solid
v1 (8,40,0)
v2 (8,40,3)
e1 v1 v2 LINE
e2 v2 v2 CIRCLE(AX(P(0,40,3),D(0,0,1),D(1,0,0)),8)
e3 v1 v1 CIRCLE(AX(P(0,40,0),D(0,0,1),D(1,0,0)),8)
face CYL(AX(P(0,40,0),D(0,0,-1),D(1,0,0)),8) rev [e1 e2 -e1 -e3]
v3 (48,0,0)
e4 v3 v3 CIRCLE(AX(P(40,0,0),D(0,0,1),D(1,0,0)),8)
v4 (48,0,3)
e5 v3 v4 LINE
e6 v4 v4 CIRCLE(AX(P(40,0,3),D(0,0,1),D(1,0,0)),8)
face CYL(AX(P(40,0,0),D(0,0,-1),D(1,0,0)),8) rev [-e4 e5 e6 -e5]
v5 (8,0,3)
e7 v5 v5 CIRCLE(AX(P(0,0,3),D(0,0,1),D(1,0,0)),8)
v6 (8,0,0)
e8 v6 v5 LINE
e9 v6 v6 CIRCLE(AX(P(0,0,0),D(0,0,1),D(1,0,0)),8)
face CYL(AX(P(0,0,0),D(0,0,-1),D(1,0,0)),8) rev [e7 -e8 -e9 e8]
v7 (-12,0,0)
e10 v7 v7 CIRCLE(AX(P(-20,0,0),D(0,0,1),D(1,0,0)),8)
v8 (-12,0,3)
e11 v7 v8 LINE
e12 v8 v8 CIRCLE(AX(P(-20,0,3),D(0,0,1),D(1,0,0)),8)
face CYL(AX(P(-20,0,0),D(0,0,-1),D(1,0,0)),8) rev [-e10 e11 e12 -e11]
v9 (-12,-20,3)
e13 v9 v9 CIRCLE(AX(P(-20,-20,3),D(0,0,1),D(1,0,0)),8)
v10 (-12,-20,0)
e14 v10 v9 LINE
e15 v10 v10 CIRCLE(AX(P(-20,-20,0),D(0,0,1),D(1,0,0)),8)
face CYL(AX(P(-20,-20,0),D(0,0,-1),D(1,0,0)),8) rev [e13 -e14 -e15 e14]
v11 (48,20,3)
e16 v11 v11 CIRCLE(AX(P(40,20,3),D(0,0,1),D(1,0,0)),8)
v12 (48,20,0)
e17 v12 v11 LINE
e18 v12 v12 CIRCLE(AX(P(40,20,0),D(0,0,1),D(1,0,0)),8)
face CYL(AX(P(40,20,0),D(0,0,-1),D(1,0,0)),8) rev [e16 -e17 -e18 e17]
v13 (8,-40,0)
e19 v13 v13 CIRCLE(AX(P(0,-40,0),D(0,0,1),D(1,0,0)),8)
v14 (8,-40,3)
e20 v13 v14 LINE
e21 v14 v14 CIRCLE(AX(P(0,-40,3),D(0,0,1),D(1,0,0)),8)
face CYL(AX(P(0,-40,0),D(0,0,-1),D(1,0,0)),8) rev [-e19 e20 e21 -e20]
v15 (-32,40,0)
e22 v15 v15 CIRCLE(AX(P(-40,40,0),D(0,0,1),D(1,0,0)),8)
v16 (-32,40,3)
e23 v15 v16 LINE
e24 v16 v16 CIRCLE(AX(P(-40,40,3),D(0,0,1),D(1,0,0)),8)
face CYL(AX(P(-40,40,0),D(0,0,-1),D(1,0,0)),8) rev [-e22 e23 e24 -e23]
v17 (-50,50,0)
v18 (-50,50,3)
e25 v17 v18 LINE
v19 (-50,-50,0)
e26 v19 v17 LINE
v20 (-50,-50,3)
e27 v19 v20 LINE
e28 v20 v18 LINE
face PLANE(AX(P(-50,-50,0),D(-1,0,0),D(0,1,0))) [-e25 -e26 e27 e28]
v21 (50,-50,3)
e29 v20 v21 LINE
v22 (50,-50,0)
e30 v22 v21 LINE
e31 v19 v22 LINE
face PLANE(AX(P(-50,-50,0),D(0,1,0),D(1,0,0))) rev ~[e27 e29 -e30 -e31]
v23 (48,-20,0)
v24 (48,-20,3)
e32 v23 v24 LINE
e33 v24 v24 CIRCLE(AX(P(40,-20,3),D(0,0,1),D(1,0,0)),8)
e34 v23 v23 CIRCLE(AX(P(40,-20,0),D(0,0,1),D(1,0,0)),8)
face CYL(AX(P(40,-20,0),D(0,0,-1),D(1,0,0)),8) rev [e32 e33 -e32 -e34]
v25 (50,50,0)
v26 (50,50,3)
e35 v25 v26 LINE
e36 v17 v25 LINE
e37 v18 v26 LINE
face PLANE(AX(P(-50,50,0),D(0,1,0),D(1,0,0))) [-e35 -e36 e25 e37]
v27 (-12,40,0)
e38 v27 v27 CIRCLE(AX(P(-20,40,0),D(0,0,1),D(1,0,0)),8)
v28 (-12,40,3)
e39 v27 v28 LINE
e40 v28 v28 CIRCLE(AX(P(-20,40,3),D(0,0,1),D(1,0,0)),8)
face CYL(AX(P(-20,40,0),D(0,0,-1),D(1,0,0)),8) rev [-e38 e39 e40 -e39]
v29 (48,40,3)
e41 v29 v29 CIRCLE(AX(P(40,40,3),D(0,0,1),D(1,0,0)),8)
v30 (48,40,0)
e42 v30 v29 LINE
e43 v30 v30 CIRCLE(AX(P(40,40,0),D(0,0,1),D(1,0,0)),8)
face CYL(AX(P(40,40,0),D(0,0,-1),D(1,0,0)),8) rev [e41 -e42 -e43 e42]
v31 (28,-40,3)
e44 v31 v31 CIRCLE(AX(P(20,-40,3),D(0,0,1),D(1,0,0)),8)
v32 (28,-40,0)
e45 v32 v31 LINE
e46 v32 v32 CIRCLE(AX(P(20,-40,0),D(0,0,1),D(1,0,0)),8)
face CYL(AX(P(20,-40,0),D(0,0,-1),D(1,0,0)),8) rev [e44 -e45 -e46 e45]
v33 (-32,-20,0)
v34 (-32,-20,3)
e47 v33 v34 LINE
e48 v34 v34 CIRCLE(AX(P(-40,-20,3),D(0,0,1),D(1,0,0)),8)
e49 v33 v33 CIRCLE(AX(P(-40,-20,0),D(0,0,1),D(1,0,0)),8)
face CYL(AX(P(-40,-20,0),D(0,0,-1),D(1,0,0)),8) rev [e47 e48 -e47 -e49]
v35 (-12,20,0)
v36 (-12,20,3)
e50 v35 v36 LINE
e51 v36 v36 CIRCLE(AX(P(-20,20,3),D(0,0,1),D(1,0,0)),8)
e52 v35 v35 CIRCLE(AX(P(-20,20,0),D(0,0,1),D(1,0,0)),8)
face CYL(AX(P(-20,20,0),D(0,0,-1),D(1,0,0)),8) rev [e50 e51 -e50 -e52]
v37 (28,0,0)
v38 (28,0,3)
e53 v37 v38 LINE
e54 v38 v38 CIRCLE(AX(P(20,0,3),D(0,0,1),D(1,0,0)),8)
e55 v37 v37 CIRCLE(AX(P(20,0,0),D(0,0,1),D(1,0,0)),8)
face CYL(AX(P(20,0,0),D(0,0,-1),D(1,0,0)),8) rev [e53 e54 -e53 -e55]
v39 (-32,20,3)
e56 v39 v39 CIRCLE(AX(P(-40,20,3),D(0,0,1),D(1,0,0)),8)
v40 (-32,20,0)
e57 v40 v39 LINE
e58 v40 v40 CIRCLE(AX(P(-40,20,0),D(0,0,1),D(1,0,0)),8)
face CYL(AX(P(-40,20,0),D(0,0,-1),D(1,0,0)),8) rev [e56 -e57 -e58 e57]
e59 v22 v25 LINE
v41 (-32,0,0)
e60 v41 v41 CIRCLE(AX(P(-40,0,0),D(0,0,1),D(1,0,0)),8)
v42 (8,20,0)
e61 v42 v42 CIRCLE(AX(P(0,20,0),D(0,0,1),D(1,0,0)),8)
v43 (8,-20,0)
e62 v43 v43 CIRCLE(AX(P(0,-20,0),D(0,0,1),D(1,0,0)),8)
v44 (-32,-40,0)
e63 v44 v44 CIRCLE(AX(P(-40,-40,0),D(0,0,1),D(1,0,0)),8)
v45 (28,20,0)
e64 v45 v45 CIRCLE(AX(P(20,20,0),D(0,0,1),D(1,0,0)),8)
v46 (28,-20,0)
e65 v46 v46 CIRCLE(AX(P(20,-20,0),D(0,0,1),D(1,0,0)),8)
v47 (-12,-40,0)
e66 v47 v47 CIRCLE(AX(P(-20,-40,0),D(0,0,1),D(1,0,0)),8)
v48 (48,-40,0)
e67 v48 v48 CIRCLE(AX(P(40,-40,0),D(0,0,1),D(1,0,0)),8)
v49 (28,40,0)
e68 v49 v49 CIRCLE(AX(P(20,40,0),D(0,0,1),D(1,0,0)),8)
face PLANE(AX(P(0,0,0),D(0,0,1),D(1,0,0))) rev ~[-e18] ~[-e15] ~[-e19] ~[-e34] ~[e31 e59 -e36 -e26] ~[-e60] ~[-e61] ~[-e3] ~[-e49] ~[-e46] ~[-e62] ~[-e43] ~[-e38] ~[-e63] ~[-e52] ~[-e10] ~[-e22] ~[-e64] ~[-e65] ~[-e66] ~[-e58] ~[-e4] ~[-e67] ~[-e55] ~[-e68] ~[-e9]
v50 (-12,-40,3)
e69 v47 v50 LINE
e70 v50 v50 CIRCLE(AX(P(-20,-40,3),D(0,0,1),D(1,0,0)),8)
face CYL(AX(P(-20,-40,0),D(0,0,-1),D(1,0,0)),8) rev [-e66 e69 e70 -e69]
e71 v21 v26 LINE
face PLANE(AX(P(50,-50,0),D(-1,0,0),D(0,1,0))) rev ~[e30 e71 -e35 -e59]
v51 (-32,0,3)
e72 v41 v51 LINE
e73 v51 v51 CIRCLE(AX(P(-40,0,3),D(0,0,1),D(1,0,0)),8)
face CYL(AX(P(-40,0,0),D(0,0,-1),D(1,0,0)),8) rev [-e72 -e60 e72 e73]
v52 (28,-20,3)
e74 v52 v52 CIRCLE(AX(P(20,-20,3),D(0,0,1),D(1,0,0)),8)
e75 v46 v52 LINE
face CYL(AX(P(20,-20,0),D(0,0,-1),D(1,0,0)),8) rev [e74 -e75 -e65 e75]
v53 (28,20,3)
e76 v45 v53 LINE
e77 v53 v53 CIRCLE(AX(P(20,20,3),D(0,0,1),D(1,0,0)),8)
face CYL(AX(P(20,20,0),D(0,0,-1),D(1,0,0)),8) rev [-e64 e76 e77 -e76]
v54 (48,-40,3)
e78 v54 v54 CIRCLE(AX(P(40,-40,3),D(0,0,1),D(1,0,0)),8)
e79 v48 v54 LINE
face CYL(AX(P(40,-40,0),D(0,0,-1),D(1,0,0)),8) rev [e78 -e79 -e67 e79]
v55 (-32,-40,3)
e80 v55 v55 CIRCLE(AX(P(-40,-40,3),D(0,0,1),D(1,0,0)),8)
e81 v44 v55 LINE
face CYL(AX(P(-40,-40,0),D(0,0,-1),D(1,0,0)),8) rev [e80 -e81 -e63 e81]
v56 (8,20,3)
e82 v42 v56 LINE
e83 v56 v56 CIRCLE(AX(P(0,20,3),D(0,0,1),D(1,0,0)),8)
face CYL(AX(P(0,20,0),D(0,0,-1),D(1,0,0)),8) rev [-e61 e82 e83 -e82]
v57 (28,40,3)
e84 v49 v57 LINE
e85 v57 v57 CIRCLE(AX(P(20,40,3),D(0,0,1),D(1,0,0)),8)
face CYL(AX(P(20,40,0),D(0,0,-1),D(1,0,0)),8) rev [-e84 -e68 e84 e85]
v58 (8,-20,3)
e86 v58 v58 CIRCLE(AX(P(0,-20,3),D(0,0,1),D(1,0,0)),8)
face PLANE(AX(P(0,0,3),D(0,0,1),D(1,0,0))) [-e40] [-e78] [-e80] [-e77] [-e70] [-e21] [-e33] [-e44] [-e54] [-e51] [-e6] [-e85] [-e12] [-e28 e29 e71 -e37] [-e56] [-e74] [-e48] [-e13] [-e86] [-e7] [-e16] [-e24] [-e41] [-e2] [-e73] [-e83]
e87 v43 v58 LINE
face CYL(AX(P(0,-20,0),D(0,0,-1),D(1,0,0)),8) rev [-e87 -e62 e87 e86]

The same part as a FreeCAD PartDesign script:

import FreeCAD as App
import Part
import Sketcher
from FreeCAD import Vector


def add_polygon(sketch, points):
    """Adds a closed chain of lines whose ends are joined by coincident constraints."""
    first, n = sketch.GeometryCount, len(points)
    for a, b in zip(points, points[1:] + points[:1]):
        sketch.addGeometry(Part.LineSegment(App.Vector(*a, 0), App.Vector(*b, 0)), False)
    for i in range(n):
        sketch.addConstraint(Sketcher.Constraint("Coincident", first + i, 2, first + (i + 1) % n, 1))

doc = App.newDocument("Part")
body = doc.addObject("PartDesign::Body", "Body")

# Sketch on XY plane
sketch1 = body.newObject("Sketcher::SketchObject", "Sketch")
sketch1.AttachmentSupport = (doc.getObject("XY_Plane"), [""])
sketch1.MapMode = "FlatFace"
add_polygon(sketch1, [(-50, 50), (-50, -50), (50, -50), (50, 50)])  # lines 0-3
sketch1.addGeometry(Part.Circle(Vector(-40, -40, 0), Vector(0, 0, 1), 8), False)  # 4
sketch1.addGeometry(Part.Circle(Vector(-20, -40, 0), Vector(0, 0, 1), 8), False)  # 5
sketch1.addGeometry(Part.Circle(Vector(-40, -20, 0), Vector(0, 0, 1), 8), False)  # 6
sketch1.addGeometry(Part.Circle(Vector(-20, -20, 0), Vector(0, 0, 1), 8), False)  # 7
sketch1.addGeometry(Part.Circle(Vector(0, -40, 0), Vector(0, 0, 1), 8), False)  # 8
sketch1.addGeometry(Part.Circle(Vector(20, -40, 0), Vector(0, 0, 1), 8), False)  # 9
sketch1.addGeometry(Part.Circle(Vector(40, -40, 0), Vector(0, 0, 1), 8), False)  # 10
sketch1.addGeometry(Part.Circle(Vector(0, -20, 0), Vector(0, 0, 1), 8), False)  # 11
sketch1.addGeometry(Part.Circle(Vector(20, -20, 0), Vector(0, 0, 1), 8), False)  # 12
sketch1.addGeometry(Part.Circle(Vector(40, -20, 0), Vector(0, 0, 1), 8), False)  # 13
sketch1.addGeometry(Part.Circle(Vector(-40, 0, 0), Vector(0, 0, 1), 8), False)  # 14
sketch1.addGeometry(Part.Circle(Vector(-40, 20, 0), Vector(0, 0, 1), 8), False)  # 15
sketch1.addGeometry(Part.Circle(Vector(-20, 0, 0), Vector(0, 0, 1), 8), False)  # 16
sketch1.addGeometry(Part.Circle(Vector(-20, 20, 0), Vector(0, 0, 1), 8), False)  # 17
sketch1.addGeometry(Part.Circle(Vector(-40, 40, 0), Vector(0, 0, 1), 8), False)  # 18
sketch1.addGeometry(Part.Circle(Vector(-20, 40, 0), Vector(0, 0, 1), 8), False)  # 19
sketch1.addGeometry(Part.Circle(Vector(0, 0, 0), Vector(0, 0, 1), 8), False)  # 20
sketch1.addGeometry(Part.Circle(Vector(20, 0, 0), Vector(0, 0, 1), 8), False)  # 21
sketch1.addGeometry(Part.Circle(Vector(0, 20, 0), Vector(0, 0, 1), 8), False)  # 22
sketch1.addGeometry(Part.Circle(Vector(20, 20, 0), Vector(0, 0, 1), 8), False)  # 23
sketch1.addGeometry(Part.Circle(Vector(40, 0, 0), Vector(0, 0, 1), 8), False)  # 24
sketch1.addGeometry(Part.Circle(Vector(40, 20, 0), Vector(0, 0, 1), 8), False)  # 25
sketch1.addGeometry(Part.Circle(Vector(0, 40, 0), Vector(0, 0, 1), 8), False)  # 26
sketch1.addGeometry(Part.Circle(Vector(20, 40, 0), Vector(0, 0, 1), 8), False)  # 27
sketch1.addGeometry(Part.Circle(Vector(40, 40, 0), Vector(0, 0, 1), 8), False)  # 28
sketch1.addConstraint(Sketcher.Constraint("Vertical", 0))
sketch1.addConstraint(Sketcher.Constraint("Horizontal", 1))
sketch1.addConstraint(Sketcher.Constraint("Vertical", 2))
sketch1.addConstraint(Sketcher.Constraint("Horizontal", 3))
sketch1.addConstraint(Sketcher.Constraint("Coincident", 20, 3, -1, 1))
sketch1.addConstraint(Sketcher.Constraint("Equal", 4, 5))
sketch1.addConstraint(Sketcher.Constraint("Equal", 5, 6))
sketch1.addConstraint(Sketcher.Constraint("Equal", 6, 7))
sketch1.addConstraint(Sketcher.Constraint("Equal", 7, 8))
sketch1.addConstraint(Sketcher.Constraint("Equal", 8, 9))
sketch1.addConstraint(Sketcher.Constraint("Equal", 9, 10))
sketch1.addConstraint(Sketcher.Constraint("Equal", 10, 11))
sketch1.addConstraint(Sketcher.Constraint("Equal", 11, 12))
sketch1.addConstraint(Sketcher.Constraint("Equal", 12, 13))
sketch1.addConstraint(Sketcher.Constraint("Equal", 13, 14))
sketch1.addConstraint(Sketcher.Constraint("Equal", 14, 15))
sketch1.addConstraint(Sketcher.Constraint("Equal", 15, 16))
sketch1.addConstraint(Sketcher.Constraint("Equal", 16, 17))
sketch1.addConstraint(Sketcher.Constraint("Equal", 17, 18))
sketch1.addConstraint(Sketcher.Constraint("Equal", 18, 19))
sketch1.addConstraint(Sketcher.Constraint("Equal", 19, 20))
sketch1.addConstraint(Sketcher.Constraint("Equal", 20, 21))
sketch1.addConstraint(Sketcher.Constraint("Equal", 21, 22))
sketch1.addConstraint(Sketcher.Constraint("Equal", 22, 23))
sketch1.addConstraint(Sketcher.Constraint("Equal", 23, 24))
sketch1.addConstraint(Sketcher.Constraint("Equal", 24, 25))
sketch1.addConstraint(Sketcher.Constraint("Equal", 25, 26))
sketch1.addConstraint(Sketcher.Constraint("Equal", 26, 27))
sketch1.addConstraint(Sketcher.Constraint("Equal", 27, 28))
sketch1.addConstraint(Sketcher.Constraint("Symmetric", 13, 3, 15, 3, -1, 1))
sketch1.addConstraint(Sketcher.Constraint("Symmetric", 12, 3, 17, 3, -1, 1))
sketch1.addConstraint(Sketcher.Constraint("Symmetric", 10, 3, 18, 3, -1, 1))
sketch1.addConstraint(Sketcher.Constraint("Symmetric", 9, 3, 19, 3, -1, 1))
sketch1.addConstraint(Sketcher.Constraint("Symmetric", 16, 3, 21, 3, -1, 1))
sketch1.addConstraint(Sketcher.Constraint("Symmetric", 11, 3, 22, 3, -1, 1))
sketch1.addConstraint(Sketcher.Constraint("Symmetric", 7, 3, 23, 3, -1, 1))
sketch1.addConstraint(Sketcher.Constraint("Symmetric", 14, 3, 24, 3, -1, 1))
sketch1.addConstraint(Sketcher.Constraint("Symmetric", 6, 3, 25, 3, -1, 1))
sketch1.addConstraint(Sketcher.Constraint("Symmetric", 8, 3, 26, 3, -1, 1))
sketch1.addConstraint(Sketcher.Constraint("Symmetric", 5, 3, 27, 3, -1, 1))
sketch1.addConstraint(Sketcher.Constraint("Symmetric", 4, 3, 28, 3, -1, 1))
sketch1.addConstraint(Sketcher.Constraint("Symmetric", 0, 2, 2, 2, -1, 1))
sketch1.addConstraint(Sketcher.Constraint("Symmetric", 5, 3, 9, 3, -2))
sketch1.addConstraint(Sketcher.Constraint("Symmetric", 4, 3, 10, 3, -2))
sketch1.addConstraint(Sketcher.Constraint("Symmetric", 7, 3, 12, 3, -2))
sketch1.addConstraint(Sketcher.Constraint("Symmetric", 6, 3, 13, 3, -2))
sketch1.addConstraint(Sketcher.Constraint("PointOnObject", 8, 3, -2))
sketch1.addConstraint(Sketcher.Constraint("PointOnObject", 11, 3, -2))
sketch1.addConstraint(Sketcher.Constraint("PointOnObject", 14, 3, -1))
sketch1.addConstraint(Sketcher.Constraint("PointOnObject", 16, 3, -1))
sketch1.addConstraint(Sketcher.Constraint("Horizontal", 4, 3, 5, 3))
sketch1.addConstraint(Sketcher.Constraint("Horizontal", 6, 3, 7, 3))
sketch1.addConstraint(Sketcher.Constraint("Horizontal", 5, 3, 8, 3))
sketch1.addConstraint(Sketcher.Constraint("Horizontal", 7, 3, 11, 3))
sketch1.addConstraint(Sketcher.Constraint("Vertical", 4, 3, 6, 3))
sketch1.addConstraint(Sketcher.Constraint("Vertical", 5, 3, 7, 3))
sketch1.addConstraint(Sketcher.Constraint("Vertical", 6, 3, 14, 3))
sketch1.addConstraint(Sketcher.Constraint("Vertical", 7, 3, 16, 3))
sketch1.addConstraint(Sketcher.Constraint("Equal", 3, 0))
sketch1.addConstraint(Sketcher.Constraint("Diameter", 4, 16.0))
sketch1.addConstraint(Sketcher.Constraint("DistanceX", 1, 1, 1, 2, 100.0))
sketch1.addConstraint(Sketcher.Constraint("DistanceX", 4, 3, -1, 1, 40.0))
sketch1.addConstraint(Sketcher.Constraint("DistanceY", 4, 3, -1, 1, 40.0))
sketch1.addConstraint(Sketcher.Constraint("DistanceX", 5, 3, -1, 1, 20.0))
sketch1.addConstraint(Sketcher.Constraint("DistanceY", 6, 3, -1, 1, 20.0))
pad1 = body.newObject("PartDesign::Pad", "Pad")
pad1.Profile = sketch1
pad1.Length = 3

doc.recompute()
